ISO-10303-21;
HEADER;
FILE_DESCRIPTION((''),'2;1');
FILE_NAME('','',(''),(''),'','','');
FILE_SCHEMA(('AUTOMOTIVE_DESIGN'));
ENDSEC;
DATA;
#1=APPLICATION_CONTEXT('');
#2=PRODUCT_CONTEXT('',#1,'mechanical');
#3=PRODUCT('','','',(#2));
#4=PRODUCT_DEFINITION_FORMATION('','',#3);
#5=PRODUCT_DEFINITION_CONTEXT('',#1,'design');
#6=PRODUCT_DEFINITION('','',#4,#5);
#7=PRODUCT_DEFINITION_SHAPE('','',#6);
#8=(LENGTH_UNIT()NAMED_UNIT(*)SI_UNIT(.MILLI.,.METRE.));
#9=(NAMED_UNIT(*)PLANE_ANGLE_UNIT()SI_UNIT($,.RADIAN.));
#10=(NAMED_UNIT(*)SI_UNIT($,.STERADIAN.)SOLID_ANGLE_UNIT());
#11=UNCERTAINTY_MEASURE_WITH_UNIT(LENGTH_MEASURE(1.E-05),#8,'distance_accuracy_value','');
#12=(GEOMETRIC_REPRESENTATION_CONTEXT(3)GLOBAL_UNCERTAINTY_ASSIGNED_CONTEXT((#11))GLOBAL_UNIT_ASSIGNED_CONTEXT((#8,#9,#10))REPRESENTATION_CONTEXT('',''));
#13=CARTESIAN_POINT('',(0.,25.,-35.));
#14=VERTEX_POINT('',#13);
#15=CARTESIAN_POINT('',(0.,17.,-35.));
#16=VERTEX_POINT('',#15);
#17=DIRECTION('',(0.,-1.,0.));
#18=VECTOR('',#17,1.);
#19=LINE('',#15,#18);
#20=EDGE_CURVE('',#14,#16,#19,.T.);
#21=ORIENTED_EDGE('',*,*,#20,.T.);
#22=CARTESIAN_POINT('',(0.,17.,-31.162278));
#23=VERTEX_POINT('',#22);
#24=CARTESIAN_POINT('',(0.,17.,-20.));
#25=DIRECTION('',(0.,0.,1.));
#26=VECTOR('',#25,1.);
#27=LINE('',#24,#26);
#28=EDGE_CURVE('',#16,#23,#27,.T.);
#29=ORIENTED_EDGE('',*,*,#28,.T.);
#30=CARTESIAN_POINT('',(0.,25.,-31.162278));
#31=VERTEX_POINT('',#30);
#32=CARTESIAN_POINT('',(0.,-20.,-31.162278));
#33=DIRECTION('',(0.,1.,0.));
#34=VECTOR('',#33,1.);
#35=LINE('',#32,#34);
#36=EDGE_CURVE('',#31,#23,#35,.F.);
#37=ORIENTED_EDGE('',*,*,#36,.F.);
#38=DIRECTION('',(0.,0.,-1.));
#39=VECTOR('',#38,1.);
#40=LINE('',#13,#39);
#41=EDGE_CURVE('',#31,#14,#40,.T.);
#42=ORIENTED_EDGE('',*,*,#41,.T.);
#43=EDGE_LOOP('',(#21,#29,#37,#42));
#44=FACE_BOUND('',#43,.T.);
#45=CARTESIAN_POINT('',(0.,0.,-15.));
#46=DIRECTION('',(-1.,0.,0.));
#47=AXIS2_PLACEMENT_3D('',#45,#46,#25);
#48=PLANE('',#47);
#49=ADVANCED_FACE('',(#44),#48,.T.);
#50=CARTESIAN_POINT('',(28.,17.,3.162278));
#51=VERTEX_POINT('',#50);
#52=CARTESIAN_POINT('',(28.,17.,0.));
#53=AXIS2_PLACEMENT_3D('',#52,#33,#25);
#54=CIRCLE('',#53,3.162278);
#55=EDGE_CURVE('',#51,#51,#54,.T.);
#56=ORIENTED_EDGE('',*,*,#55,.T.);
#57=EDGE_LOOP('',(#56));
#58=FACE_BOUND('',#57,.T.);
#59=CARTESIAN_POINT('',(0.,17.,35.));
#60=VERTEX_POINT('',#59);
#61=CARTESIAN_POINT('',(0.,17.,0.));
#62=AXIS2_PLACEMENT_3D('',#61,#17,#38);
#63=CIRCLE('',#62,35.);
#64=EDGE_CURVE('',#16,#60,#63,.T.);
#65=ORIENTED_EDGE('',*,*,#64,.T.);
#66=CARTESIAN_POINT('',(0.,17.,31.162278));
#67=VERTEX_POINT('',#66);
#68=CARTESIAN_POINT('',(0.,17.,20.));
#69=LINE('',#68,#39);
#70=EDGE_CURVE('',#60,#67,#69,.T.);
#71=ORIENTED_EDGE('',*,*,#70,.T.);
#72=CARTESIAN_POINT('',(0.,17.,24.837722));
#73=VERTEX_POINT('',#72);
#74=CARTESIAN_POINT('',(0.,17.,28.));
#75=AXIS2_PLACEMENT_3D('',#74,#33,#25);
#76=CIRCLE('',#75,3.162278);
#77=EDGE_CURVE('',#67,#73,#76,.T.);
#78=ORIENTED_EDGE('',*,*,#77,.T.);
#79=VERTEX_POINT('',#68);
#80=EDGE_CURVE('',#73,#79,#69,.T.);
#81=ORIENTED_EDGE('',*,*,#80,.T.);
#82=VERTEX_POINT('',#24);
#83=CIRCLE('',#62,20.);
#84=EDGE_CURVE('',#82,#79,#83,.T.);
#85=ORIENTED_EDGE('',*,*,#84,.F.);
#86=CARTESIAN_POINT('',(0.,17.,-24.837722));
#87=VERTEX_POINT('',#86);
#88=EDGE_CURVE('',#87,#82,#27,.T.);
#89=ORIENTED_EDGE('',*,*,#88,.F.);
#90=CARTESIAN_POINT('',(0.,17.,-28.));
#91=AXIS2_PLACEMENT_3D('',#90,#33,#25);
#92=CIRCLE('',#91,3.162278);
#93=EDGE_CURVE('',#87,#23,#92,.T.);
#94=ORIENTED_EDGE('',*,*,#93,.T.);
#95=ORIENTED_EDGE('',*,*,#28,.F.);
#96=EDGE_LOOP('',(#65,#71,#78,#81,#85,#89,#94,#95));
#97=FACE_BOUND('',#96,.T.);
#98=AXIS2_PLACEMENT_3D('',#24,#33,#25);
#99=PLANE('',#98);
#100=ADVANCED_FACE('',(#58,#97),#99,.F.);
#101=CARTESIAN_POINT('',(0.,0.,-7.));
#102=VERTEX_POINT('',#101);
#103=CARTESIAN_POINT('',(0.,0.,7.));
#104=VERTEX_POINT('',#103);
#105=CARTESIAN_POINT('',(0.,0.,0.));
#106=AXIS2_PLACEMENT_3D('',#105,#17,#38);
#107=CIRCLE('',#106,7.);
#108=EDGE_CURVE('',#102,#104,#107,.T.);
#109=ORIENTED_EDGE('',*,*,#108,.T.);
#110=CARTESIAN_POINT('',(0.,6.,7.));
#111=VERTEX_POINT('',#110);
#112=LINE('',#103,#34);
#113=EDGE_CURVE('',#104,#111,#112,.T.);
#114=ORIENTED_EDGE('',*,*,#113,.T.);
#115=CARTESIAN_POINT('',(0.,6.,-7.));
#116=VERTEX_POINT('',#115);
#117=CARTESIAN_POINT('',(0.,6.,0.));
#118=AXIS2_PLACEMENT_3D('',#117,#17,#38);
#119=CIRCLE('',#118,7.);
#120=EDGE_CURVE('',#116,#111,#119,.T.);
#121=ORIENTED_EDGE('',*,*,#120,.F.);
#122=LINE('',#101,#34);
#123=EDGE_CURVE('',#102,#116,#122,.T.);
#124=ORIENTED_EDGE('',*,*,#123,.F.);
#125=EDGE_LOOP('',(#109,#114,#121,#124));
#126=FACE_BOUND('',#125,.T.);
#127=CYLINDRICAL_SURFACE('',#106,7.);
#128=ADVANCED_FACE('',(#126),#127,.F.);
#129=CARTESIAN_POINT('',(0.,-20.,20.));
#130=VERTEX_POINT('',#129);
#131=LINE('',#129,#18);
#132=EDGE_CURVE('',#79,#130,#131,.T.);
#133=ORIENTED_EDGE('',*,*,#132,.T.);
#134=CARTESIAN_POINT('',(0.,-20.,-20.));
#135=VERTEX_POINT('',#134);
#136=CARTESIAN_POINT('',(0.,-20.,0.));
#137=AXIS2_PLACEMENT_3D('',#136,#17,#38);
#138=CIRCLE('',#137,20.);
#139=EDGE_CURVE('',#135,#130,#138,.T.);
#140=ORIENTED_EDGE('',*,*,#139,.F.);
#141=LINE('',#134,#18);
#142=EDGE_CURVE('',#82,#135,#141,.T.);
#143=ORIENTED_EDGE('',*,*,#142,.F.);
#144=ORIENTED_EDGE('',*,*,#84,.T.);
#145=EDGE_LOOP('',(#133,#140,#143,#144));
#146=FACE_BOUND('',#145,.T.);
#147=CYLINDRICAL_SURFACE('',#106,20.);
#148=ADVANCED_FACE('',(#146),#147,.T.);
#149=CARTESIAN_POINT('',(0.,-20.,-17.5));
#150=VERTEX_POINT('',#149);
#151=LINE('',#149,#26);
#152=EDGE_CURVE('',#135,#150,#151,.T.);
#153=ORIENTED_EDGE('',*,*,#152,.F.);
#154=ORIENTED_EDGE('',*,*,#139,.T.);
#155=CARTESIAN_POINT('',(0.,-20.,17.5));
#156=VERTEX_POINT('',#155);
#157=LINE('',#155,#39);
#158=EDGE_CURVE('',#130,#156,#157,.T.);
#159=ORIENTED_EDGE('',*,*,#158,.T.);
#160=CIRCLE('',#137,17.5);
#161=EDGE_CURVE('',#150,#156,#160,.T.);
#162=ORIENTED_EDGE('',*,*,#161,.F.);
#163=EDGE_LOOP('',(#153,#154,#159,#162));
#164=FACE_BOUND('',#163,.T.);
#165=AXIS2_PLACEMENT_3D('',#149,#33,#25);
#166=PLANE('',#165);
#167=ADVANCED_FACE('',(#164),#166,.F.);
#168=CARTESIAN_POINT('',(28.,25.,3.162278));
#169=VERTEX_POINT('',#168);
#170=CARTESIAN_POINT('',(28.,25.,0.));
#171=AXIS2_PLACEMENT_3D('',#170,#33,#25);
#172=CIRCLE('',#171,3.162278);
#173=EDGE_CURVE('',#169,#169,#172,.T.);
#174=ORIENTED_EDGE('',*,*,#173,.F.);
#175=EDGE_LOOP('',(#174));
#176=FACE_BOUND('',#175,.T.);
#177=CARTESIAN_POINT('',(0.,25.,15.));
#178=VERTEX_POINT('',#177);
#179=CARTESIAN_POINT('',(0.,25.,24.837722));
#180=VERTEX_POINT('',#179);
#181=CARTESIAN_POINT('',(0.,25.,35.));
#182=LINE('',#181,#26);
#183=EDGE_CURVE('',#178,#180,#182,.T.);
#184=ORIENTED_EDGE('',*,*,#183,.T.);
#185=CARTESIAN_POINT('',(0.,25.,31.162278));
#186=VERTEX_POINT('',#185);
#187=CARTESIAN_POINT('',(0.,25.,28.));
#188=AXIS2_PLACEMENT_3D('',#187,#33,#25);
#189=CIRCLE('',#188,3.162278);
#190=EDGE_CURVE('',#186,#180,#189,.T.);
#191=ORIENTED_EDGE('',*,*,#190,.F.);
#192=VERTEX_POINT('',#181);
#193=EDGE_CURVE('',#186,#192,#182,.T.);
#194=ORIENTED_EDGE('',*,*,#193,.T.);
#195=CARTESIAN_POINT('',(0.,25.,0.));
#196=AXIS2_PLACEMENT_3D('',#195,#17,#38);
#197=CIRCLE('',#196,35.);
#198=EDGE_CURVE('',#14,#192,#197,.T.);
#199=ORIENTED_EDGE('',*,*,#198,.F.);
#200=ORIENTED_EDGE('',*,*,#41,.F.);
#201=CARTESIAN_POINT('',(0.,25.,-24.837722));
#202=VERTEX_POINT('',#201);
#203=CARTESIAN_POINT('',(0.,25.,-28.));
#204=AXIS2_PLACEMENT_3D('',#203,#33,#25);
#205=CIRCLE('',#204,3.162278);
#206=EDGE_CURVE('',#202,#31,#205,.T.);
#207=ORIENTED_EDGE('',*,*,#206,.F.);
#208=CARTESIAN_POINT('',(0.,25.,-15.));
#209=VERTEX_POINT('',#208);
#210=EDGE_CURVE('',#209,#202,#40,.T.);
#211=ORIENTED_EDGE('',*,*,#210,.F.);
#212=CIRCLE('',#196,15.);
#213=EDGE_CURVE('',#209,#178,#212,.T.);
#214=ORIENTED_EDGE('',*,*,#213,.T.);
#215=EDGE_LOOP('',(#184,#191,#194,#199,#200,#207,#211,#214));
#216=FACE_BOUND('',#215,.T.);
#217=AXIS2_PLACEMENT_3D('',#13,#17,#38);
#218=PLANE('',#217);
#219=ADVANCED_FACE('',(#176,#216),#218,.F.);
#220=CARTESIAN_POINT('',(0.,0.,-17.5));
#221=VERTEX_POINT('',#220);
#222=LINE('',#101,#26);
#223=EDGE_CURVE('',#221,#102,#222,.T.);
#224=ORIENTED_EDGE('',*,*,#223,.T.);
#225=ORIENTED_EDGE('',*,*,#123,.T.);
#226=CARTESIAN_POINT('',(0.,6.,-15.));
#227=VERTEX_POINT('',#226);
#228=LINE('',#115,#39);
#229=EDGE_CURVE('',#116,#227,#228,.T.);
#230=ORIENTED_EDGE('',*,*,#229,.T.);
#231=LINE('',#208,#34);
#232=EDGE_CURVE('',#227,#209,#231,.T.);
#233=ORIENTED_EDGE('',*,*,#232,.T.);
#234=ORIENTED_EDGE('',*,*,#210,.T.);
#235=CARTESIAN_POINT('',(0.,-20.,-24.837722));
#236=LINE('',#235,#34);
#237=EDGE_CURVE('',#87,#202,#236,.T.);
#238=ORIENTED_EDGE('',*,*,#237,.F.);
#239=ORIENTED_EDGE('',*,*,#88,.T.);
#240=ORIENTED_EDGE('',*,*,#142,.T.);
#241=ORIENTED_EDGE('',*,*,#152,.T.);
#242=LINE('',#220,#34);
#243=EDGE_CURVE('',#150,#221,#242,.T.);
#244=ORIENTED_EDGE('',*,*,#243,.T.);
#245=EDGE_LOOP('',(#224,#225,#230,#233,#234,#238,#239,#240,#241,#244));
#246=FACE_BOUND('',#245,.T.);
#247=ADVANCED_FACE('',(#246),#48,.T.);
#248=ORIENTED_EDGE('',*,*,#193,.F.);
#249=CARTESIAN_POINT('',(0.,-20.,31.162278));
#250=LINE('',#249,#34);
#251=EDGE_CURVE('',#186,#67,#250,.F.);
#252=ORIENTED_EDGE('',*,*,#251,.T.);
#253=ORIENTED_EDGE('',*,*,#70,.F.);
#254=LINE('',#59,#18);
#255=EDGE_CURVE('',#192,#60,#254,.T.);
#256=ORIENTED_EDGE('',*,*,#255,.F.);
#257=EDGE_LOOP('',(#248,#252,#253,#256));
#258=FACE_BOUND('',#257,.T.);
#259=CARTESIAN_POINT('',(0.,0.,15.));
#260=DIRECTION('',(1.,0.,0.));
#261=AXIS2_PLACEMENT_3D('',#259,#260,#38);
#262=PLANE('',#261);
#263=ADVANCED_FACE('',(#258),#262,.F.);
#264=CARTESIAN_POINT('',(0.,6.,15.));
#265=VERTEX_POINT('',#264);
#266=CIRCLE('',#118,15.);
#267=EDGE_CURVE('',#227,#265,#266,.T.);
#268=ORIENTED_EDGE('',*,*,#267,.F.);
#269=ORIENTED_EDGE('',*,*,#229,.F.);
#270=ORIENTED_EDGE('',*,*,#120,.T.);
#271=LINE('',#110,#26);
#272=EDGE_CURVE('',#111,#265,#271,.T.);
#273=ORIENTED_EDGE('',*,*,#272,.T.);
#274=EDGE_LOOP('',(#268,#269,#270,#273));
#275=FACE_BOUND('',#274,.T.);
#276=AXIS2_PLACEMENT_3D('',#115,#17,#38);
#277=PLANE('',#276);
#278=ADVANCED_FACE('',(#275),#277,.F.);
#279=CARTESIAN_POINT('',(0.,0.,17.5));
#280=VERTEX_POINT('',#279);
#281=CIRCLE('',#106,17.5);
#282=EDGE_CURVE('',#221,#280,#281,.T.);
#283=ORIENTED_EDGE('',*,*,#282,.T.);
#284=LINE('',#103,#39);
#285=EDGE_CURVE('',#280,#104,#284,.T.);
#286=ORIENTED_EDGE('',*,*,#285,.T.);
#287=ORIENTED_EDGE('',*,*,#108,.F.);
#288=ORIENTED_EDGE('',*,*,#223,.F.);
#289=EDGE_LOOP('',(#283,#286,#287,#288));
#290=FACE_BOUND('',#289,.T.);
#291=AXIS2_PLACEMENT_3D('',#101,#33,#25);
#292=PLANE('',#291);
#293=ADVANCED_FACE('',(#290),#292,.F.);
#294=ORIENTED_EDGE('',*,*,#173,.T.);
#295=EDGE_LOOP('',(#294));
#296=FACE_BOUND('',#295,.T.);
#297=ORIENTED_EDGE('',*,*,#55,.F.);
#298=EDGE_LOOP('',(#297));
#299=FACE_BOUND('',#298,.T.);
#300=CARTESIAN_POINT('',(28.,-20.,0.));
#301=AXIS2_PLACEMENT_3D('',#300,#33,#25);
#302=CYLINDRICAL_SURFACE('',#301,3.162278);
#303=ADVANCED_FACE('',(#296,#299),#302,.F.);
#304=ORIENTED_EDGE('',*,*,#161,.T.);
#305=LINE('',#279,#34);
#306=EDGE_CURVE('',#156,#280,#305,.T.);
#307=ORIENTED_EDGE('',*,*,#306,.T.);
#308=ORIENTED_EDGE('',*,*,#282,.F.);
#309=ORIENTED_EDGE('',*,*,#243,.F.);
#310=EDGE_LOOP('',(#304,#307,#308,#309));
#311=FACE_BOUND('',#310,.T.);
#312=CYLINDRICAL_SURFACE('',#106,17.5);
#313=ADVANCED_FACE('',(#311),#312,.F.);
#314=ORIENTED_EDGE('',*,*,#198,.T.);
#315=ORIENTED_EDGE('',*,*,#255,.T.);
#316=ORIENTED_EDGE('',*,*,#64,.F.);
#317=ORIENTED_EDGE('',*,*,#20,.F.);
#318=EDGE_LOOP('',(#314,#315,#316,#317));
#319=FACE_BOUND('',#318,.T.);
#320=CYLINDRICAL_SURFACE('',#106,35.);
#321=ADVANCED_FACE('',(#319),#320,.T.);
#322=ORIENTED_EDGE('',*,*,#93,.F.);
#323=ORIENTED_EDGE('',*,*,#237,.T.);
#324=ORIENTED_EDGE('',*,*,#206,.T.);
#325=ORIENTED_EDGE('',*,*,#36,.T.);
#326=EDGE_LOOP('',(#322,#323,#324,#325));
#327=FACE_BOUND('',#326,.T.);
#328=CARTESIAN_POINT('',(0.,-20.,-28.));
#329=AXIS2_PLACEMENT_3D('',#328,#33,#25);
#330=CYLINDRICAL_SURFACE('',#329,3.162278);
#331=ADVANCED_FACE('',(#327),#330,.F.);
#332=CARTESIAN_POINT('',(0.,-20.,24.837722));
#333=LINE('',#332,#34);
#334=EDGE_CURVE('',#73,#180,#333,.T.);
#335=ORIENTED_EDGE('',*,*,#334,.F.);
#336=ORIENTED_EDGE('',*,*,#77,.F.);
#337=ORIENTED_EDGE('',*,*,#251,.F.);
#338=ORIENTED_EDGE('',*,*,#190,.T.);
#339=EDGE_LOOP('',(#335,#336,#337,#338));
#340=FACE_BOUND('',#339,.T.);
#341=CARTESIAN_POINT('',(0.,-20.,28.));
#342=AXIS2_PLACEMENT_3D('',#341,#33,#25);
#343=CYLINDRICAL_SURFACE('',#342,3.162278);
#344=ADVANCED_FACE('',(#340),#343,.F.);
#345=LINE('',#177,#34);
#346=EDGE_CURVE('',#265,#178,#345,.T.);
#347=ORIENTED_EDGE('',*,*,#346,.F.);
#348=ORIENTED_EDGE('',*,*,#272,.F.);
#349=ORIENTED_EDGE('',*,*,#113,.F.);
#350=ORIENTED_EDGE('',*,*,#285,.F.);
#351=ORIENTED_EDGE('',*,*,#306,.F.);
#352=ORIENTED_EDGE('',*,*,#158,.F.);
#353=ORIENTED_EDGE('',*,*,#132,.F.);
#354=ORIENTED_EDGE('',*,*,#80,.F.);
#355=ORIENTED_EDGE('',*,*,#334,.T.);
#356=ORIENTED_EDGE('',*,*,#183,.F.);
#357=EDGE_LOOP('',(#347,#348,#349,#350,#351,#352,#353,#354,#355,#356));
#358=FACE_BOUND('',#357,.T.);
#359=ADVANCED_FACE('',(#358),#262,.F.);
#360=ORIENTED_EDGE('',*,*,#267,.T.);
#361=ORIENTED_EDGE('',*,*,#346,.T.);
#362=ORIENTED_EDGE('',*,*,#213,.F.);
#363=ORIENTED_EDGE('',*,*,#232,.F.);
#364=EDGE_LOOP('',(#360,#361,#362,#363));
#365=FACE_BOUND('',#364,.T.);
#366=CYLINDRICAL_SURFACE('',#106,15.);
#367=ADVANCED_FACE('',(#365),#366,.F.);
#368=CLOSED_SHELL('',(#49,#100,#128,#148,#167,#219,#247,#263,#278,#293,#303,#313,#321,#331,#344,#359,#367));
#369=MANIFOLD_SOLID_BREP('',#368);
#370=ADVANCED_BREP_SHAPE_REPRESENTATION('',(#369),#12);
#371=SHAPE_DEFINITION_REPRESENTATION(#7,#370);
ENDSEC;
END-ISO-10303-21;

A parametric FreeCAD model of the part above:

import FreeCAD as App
import Part
import Sketcher

V = App.Vector


def add_polygon(sketch, points):
    """Adds a closed chain of lines whose ends are joined by coincident constraints."""
    first, n = sketch.GeometryCount, len(points)
    for a, b in zip(points, points[1:] + points[:1]):
        sketch.addGeometry(Part.LineSegment(App.Vector(*a, 0), App.Vector(*b, 0)), False)
    for i in range(n):
        sketch.addConstraint(Sketcher.Constraint("Coincident", first + i, 2, first + (i + 1) % n, 1))

doc = App.newDocument("Part")
body = doc.addObject("PartDesign::Body", "Body")

# Sketch on YZ plane
sketch1 = doc.addObject("Sketcher::SketchObject", "Sketch")
body.addObject(sketch1)
sketch1.AttachmentSupport = (doc.YZ_Plane, [""])
sketch1.MapMode = "FlatFace"
add_polygon(sketch1, [(0, 7), (6, 7), (6, 15), (25, 15), (25, 35), (17, 35), (17, 20), (-20, 20), (-20, 17.5), (0, 17.5)])  # lines 0-9
sketch1.addConstraint([
    Sketcher.Constraint("Horizontal", 0),
    Sketcher.Constraint("Vertical", 1),
    Sketcher.Constraint("Horizontal", 2),
    Sketcher.Constraint("Vertical", 3),
    Sketcher.Constraint("Horizontal", 4),
    Sketcher.Constraint("Vertical", 5),
    Sketcher.Constraint("Horizontal", 6),
    Sketcher.Constraint("Vertical", 7),
    Sketcher.Constraint("Horizontal", 8),
    Sketcher.Constraint("Vertical", 9),
    Sketcher.Constraint("PointOnObject", 8, 2, -2),
    Sketcher.Constraint("Equal", 4, 1),
    Sketcher.Constraint("Equal", 8, 3),
    Sketcher.Constraint("DistanceX", 0, 1, 0, 2, 6.0),
    Sketcher.Constraint("DistanceX", 2, 1, 2, 2, 19.0),
    Sketcher.Constraint("DistanceX", 4, 2, 4, 1, 8.0),
    Sketcher.Constraint("DistanceX", 6, 2, 6, 1, 37.0),
    Sketcher.Constraint("DistanceY", 5, 2, 5, 1, 15.0),
    Sketcher.Constraint("DistanceY", 7, 2, 7, 1, 2.5),
    Sketcher.Constraint("DistanceY", -1, 1, 0, 2, 7.0),
])
revolution = doc.addObject("PartDesign::Revolution", "Revolution")
body.addObject(revolution)
revolution.Profile = sketch1
revolution.ReferenceAxis = (sketch1, ["H_Axis"])
revolution.Angle = 180

# Sketch on XZ plane
sketch2 = doc.addObject("Sketcher::SketchObject", "Sketch001")
body.addObject(sketch2)
sketch2.AttachmentSupport = (doc.XZ_Plane, [""])
sketch2.MapMode = "FlatFace"
sketch2.AttachmentOffset = App.Placement(V(0, 0, -25), App.Rotation())
sketch2.addGeometry([
    Part.Circle(V(0, -28, 0), V(0, 0, 1), 3.2),
    Part.Circle(V(0, 28, 0), V(0, 0, 1), 3.2),
    Part.Circle(V(28, 0, 0), V(0, 0, 1), 3.2),
], False)
sketch2.addConstraint([
    Sketcher.Constraint("Equal", 0, 1),
    Sketcher.Constraint("Equal", 1, 2),
    Sketcher.Constraint("Symmetric", 0, 3, 1, 3, -1, 1),
    Sketcher.Constraint("PointOnObject", 0, 3, -2),
    Sketcher.Constraint("PointOnObject", 2, 3, -1),
    Sketcher.Constraint("DistanceY", 0, 3, -1, 1, 28.0),
    Sketcher.Constraint("DistanceX", -1, 1, 2, 3, 28.0),
    Sketcher.Constraint("Diameter", 0, 6.324555),
])
pocket1 = doc.addObject("PartDesign::Pocket", "Pocket")
body.addObject(pocket1)
pocket1.Profile = sketch2
pocket1.Type = "ThroughAll"
pocket1.Reversed = True

doc.recompute()
